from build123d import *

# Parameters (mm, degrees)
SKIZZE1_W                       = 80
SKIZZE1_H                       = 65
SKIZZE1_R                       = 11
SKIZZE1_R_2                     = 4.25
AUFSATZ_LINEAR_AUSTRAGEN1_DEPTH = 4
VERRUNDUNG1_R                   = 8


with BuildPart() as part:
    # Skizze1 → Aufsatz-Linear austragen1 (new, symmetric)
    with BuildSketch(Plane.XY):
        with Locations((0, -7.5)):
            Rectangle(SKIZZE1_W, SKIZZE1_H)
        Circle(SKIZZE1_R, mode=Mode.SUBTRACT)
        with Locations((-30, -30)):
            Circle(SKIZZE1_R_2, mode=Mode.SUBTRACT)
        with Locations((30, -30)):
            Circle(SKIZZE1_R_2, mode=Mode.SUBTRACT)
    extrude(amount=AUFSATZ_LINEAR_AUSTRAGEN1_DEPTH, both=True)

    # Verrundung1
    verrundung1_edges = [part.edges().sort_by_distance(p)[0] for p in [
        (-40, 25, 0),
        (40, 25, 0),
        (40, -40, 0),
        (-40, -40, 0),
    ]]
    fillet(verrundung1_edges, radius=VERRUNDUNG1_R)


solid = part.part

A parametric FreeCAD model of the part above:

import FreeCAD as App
import Part
import Sketcher
from FreeCAD import Vector


def edges_at(feature, points):
    """Names of the edges that pass closest to the given points."""
    edges = feature.Shape.Edges
    near = lambda p: min(range(len(edges)), key=lambda i: edges[i].distToShape(Part.Vertex(*p))[0])
    return sorted({f"Edge{near(p) + 1}" for p in points})


def add_polygon(sketch, points):
    """Adds a closed chain of lines whose ends are joined by coincident constraints."""
    first, n = sketch.GeometryCount, len(points)
    for a, b in zip(points, points[1:] + points[:1]):
        sketch.addGeometry(Part.LineSegment(App.Vector(*a, 0), App.Vector(*b, 0)), False)
    for i in range(n):
        sketch.addConstraint(Sketcher.Constraint("Coincident", first + i, 2, first + (i + 1) % n, 1))

doc = App.newDocument("Part")
body = doc.addObject("PartDesign::Body", "Body")

# Sketch on XY plane
sketch1 = body.newObject("Sketcher::SketchObject", "Sketch")
sketch1.AttachmentSupport = (doc.getObject("XY_Plane"), [""])
sketch1.MapMode = "FlatFace"
add_polygon(sketch1, [(-40, 25), (-40, -40), (40, -40), (40, 25)])  # lines 0-3
sketch1.addGeometry(Part.Circle(Vector(-30, -30, 0), Vector(0, 0, 1), 4.2), False)  # 4
sketch1.addGeometry(Part.Circle(Vector(30, -30, 0), Vector(0, 0, 1), 4.2), False)  # 5
sketch1.addGeometry(Part.Circle(Vector(0, 0, 0), Vector(0, 0, 1), 11), False)  # 6
sketch1.addConstraint(Sketcher.Constraint("Vertical", 0))
sketch1.addConstraint(Sketcher.Constraint("Horizontal", 1))
sketch1.addConstraint(Sketcher.Constraint("Vertical", 2))
sketch1.addConstraint(Sketcher.Constraint("Horizontal", 3))
sketch1.addConstraint(Sketcher.Constraint("Coincident", 6, 3, -1, 1))
sketch1.addConstraint(Sketcher.Constraint("Equal", 4, 5))
sketch1.addConstraint(Sketcher.Constraint("Symmetric", 4, 3, 5, 3, -2))
sketch1.addConstraint(Sketcher.Constraint("Diameter", 6, 22.0))
sketch1.addConstraint(Sketcher.Constraint("Diameter", 4, 8.5))
sketch1.addConstraint(Sketcher.Constraint("DistanceX", 1, 1, 1, 2, 80.0))
sketch1.addConstraint(Sketcher.Constraint("DistanceY", 0, 2, 0, 1, 65.0))
sketch1.addConstraint(Sketcher.Constraint("DistanceX", 4, 3, -1, 1, 30.0))
sketch1.addConstraint(Sketcher.Constraint("DistanceY", 4, 3, -1, 1, 30.0))
sketch1.addConstraint(Sketcher.Constraint("DistanceX", 0, 2, -1, 1, 40.0))
sketch1.addConstraint(Sketcher.Constraint("DistanceY", 0, 2, -1, 1, 40.0))
pad1 = body.newObject("PartDesign::Pad", "Pad")
pad1.Profile = sketch1
pad1.Length = 8
pad1.Midplane = True
doc.recompute()

fillet = body.newObject("PartDesign::Fillet", "Fillet")
fillet.Base = (pad1, edges_at(pad1, [
    (-40, 25, 0),
    (40, 25, 0),
    (40, -40, 0),
    (-40, -40, 0),
]))
fillet.Radius = 8

doc.recompute()
